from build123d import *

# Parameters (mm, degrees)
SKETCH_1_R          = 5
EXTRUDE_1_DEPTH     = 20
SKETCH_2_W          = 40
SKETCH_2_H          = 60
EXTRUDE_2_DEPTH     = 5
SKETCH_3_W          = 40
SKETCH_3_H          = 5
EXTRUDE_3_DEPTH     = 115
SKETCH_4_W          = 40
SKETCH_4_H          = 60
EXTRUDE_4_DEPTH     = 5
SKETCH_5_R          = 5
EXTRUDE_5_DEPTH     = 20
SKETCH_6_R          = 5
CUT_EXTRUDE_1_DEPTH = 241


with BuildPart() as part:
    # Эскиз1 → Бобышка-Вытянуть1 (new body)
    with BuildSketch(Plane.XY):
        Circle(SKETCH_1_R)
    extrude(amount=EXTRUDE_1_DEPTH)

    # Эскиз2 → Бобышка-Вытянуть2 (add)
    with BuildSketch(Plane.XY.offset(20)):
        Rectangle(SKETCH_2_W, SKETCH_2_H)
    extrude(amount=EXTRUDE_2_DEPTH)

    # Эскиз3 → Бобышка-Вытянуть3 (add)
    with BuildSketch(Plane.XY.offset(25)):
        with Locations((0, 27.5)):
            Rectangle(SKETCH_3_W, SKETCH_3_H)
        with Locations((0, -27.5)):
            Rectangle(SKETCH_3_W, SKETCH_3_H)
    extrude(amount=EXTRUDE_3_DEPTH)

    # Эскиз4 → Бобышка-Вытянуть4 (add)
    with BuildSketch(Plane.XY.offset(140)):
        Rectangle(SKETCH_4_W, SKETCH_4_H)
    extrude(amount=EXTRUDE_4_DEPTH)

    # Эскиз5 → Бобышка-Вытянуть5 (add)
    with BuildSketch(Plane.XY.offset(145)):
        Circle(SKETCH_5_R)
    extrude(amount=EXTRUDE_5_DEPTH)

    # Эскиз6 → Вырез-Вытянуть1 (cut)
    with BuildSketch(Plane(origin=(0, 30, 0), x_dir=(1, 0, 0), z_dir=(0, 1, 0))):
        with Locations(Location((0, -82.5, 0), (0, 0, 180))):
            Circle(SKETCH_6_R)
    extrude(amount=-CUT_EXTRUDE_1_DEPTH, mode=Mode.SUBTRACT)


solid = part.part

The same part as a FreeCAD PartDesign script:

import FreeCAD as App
import Part
import Sketcher
from FreeCAD import Vector


def add_polygon(sketch, points):
    """Adds a closed chain of lines whose ends are joined by coincident constraints."""
    first, n = sketch.GeometryCount, len(points)
    for a, b in zip(points, points[1:] + points[:1]):
        sketch.addGeometry(Part.LineSegment(App.Vector(*a, 0), App.Vector(*b, 0)), False)
    for i in range(n):
        sketch.addConstraint(Sketcher.Constraint("Coincident", first + i, 2, first + (i + 1) % n, 1))

doc = App.newDocument("Part")
body = doc.addObject("PartDesign::Body", "Body")

sketch1 = body.newObject("Sketcher::SketchObject", "Sketch")
sketch1.AttachmentSupport = (doc.getObject("XY_Plane"), [""])
sketch1.MapMode = "FlatFace"
sketch1.addGeometry(Part.Circle(Vector(0, 0, 0), Vector(0, 0, 1), 5), False)
sketch1.addConstraint([
    Sketcher.Constraint("Coincident", 0, 3, -1, 1),
    Sketcher.Constraint("Diameter", 0, 10.0),
])
pad1 = body.newObject("PartDesign::Pad", "Pad")
pad1.Profile = sketch1
pad1.Length = 20

sketch2 = body.newObject("Sketcher::SketchObject", "Sketch001")
sketch2.AttachmentSupport = (doc.getObject("XY_Plane"), [""])
sketch2.MapMode = "FlatFace"
sketch2.AttachmentOffset = App.Placement(Vector(0, 0, 20), App.Rotation())
add_polygon(sketch2, [(-20, 30), (-20, -30), (20, -30), (20, 30)])
sketch2.addConstraint([
    Sketcher.Constraint("Vertical", 0),
    Sketcher.Constraint("Horizontal", 1),
    Sketcher.Constraint("Vertical", 2),
    Sketcher.Constraint("Horizontal", 3),
    Sketcher.Constraint("Symmetric", 0, 2, 2, 2, -1, 1),
    Sketcher.Constraint("DistanceX", 1, 1, 1, 2, 40.0),
    Sketcher.Constraint("DistanceY", 0, 2, 0, 1, 60.0),
])
pad2 = body.newObject("PartDesign::Pad", "Pad001")
pad2.Profile = sketch2
pad2.Length = 5

sketch3 = body.newObject("Sketcher::SketchObject", "Sketch002")
sketch3.AttachmentSupport = (doc.getObject("XY_Plane"), [""])
sketch3.MapMode = "FlatFace"
sketch3.AttachmentOffset = App.Placement(Vector(0, 0, 25), App.Rotation())
add_polygon(sketch3, [(-20, 30), (-20, 25), (20, 25), (20, 30)])
add_polygon(sketch3, [(-20, -25), (-20, -30), (20, -30), (20, -25)])
sketch3.addConstraint([
    Sketcher.Constraint("Vertical", 0),
    Sketcher.Constraint("Horizontal", 1),
    Sketcher.Constraint("Vertical", 2),
    Sketcher.Constraint("Horizontal", 3),
    Sketcher.Constraint("Vertical", 4),
    Sketcher.Constraint("Horizontal", 5),
    Sketcher.Constraint("Vertical", 6),
    Sketcher.Constraint("Horizontal", 7),
    Sketcher.Constraint("Symmetric", 2, 2, 4, 2, -1, 1),
    Sketcher.Constraint("Symmetric", 0, 2, 6, 2, -1, 1),
    Sketcher.Constraint("Vertical", 3, 2, 4, 2),
    Sketcher.Constraint("DistanceX", 1, 1, 1, 2, 40.0),
    Sketcher.Constraint("DistanceY", 0, 2, 0, 1, 5.0),
    Sketcher.Constraint("DistanceY", -1, 1, 0, 2, 25.0),
])
pad3 = body.newObject("PartDesign::Pad", "Pad002")
pad3.Profile = sketch3
pad3.Length = 115

sketch4 = body.newObject("Sketcher::SketchObject", "Sketch003")
sketch4.AttachmentSupport = (doc.getObject("XY_Plane"), [""])
sketch4.MapMode = "FlatFace"
sketch4.AttachmentOffset = App.Placement(Vector(0, 0, 140), App.Rotation())
add_polygon(sketch4, [(-20, 30), (-20, -30), (20, -30), (20, 30)])
sketch4.addConstraint([
    Sketcher.Constraint("Vertical", 0),
    Sketcher.Constraint("Horizontal", 1),
    Sketcher.Constraint("Vertical", 2),
    Sketcher.Constraint("Horizontal", 3),
    Sketcher.Constraint("Symmetric", 0, 2, 2, 2, -1, 1),
    Sketcher.Constraint("DistanceX", 1, 1, 1, 2, 40.0),
    Sketcher.Constraint("DistanceY", 0, 2, 0, 1, 60.0),
])
pad4 = body.newObject("PartDesign::Pad", "Pad003")
pad4.Profile = sketch4
pad4.Length = 5

sketch5 = body.newObject("Sketcher::SketchObject", "Sketch004")
sketch5.AttachmentSupport = (doc.getObject("XY_Plane"), [""])
sketch5.MapMode = "FlatFace"
sketch5.AttachmentOffset = App.Placement(Vector(0, 0, 145), App.Rotation())
sketch5.addGeometry(Part.Circle(Vector(0, 0, 0), Vector(0, 0, 1), 5), False)
sketch5.addConstraint([
    Sketcher.Constraint("Coincident", 0, 3, -1, 1),
    Sketcher.Constraint("Diameter", 0, 10.0),
])
pad5 = body.newObject("PartDesign::Pad", "Pad004")
pad5.Profile = sketch5
pad5.Length = 20

sketch6 = body.newObject("Sketcher::SketchObject", "Sketch005")
sketch6.AttachmentSupport = (doc.getObject("XZ_Plane"), [""])
sketch6.MapMode = "FlatFace"
sketch6.AttachmentOffset = App.Placement(Vector(0, 0, -30), App.Rotation())
sketch6.addGeometry(Part.Circle(Vector(0, 82, 0), Vector(0, 0, 1), 5), False)
sketch6.addConstraint([
    Sketcher.Constraint("PointOnObject", 0, 3, -2),
    Sketcher.Constraint("Diameter", 0, 10.0),
    Sketcher.Constraint("DistanceY", -1, 1, 0, 3, 82.5),
])
pocket1 = body.newObject("PartDesign::Pocket", "Pocket")
pocket1.Profile = sketch6
pocket1.Length = 241
pocket1.Reversed = True

doc.recompute()
